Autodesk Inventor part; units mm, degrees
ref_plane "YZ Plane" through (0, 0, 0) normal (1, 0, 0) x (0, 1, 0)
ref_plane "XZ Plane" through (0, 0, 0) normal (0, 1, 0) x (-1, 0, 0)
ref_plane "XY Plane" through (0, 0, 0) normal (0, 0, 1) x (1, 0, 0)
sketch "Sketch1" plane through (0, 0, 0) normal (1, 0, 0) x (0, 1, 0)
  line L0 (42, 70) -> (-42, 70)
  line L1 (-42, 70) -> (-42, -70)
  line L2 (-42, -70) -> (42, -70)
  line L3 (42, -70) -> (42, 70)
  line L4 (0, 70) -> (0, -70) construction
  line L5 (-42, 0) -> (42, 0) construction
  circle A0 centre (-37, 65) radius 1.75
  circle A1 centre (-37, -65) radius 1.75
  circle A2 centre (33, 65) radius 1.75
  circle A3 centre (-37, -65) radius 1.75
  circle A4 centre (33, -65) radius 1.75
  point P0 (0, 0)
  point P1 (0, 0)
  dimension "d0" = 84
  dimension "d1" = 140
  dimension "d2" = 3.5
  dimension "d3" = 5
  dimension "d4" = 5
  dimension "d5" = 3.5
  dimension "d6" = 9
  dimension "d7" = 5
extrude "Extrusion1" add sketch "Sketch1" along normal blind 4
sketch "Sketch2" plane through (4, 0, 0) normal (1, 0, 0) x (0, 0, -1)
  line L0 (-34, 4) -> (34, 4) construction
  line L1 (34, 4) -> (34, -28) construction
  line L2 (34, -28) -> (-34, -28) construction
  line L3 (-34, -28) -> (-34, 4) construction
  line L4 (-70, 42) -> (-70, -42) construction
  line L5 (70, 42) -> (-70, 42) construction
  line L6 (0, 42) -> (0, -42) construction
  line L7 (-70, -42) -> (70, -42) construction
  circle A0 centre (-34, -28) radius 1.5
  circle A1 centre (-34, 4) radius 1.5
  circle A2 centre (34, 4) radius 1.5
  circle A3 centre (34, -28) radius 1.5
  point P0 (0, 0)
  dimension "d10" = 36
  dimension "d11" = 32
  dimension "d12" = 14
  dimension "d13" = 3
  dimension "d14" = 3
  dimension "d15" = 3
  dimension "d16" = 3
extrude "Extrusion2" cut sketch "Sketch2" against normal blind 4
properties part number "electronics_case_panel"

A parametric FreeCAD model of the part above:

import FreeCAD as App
import Part
import Sketcher
from FreeCAD import Vector


def add_polygon(sketch, points):
    """Adds a closed chain of lines whose ends are joined by coincident constraints."""
    first, n = sketch.GeometryCount, len(points)
    for a, b in zip(points, points[1:] + points[:1]):
        sketch.addGeometry(Part.LineSegment(App.Vector(*a, 0), App.Vector(*b, 0)), False)
    for i in range(n):
        sketch.addConstraint(Sketcher.Constraint("Coincident", first + i, 2, first + (i + 1) % n, 1))

doc = App.newDocument("Part")
params = doc.addObject("Spreadsheet::Sheet", "Params")
for row, (alias, value) in enumerate([
    ("sketch1_diameter", "3.5 mm"),
    ("sketch1_width", "84 mm"),
    ("sketch1_height", "140 mm"),
    ("pad1_length", "4 mm"),
    ("sketch2_diameter", "3 mm"),
    ("pocket1_length", "4 mm"),
], start=1):
    params.set(f"A{row}", alias)
    params.set(f"B{row}", "=" + value)
    params.setAlias(f"B{row}", alias)

body = doc.addObject("PartDesign::Body", "Body")

# Sketch on YZ plane
sketch1 = body.newObject("Sketcher::SketchObject", "Sketch")
sketch1.AttachmentSupport = (doc.getObject("YZ_Plane"), [""])
sketch1.MapMode = "FlatFace"
add_polygon(sketch1, [(42, -70), (42, 70), (-42, 70), (-42, -70)])  # lines 0-3
sketch1.addGeometry(Part.Circle(Vector(-37, -65, 0), Vector(0, 0, 1), 1.8), False)  # 4
sketch1.addGeometry(Part.Circle(Vector(33, -65, 0), Vector(0, 0, 1), 1.8), False)  # 5
sketch1.addGeometry(Part.Circle(Vector(-37, 65, 0), Vector(0, 0, 1), 1.8), False)  # 6
sketch1.addGeometry(Part.Circle(Vector(33, 65, 0), Vector(0, 0, 1), 1.8), False)  # 7
sketch1.addConstraint(Sketcher.Constraint("Vertical", 0))
sketch1.addConstraint(Sketcher.Constraint("Horizontal", 1))
sketch1.addConstraint(Sketcher.Constraint("Vertical", 2))
sketch1.addConstraint(Sketcher.Constraint("Horizontal", 3))
sketch1.addConstraint(Sketcher.Constraint("Equal", 4, 5))
sketch1.addConstraint(Sketcher.Constraint("Equal", 5, 6))
sketch1.addConstraint(Sketcher.Constraint("Equal", 6, 7))
sketch1.addConstraint(Sketcher.Constraint("Symmetric", 0, 2, 2, 2, -1, 1))
sketch1.addConstraint(Sketcher.Constraint("Symmetric", 4, 3, 6, 3, -1))
sketch1.addConstraint(Sketcher.Constraint("Symmetric", 5, 3, 7, 3, -1))
sketch1.addConstraint(Sketcher.Constraint("Horizontal", 4, 3, 5, 3))
sketch1.addConstraint(Sketcher.Constraint("Diameter", 4, 3.5))
sketch1.addConstraint(Sketcher.Constraint("DistanceX", 1, 2, 1, 1, 84.0))
sketch1.addConstraint(Sketcher.Constraint("DistanceY", 0, 1, 0, 2, 140.0))
sketch1.addConstraint(Sketcher.Constraint("DistanceX", 7, 3, 0, 2, 9.0))
sketch1.addConstraint(Sketcher.Constraint("DistanceY", 7, 3, 0, 2, 5.0))
sketch1.addConstraint(Sketcher.Constraint("DistanceX", 1, 2, 6, 3, 5.0))
sketch1.setExpression("Constraints[15]", "Params.sketch1_diameter")
sketch1.setExpression("Constraints[16]", "Params.sketch1_width")
sketch1.setExpression("Constraints[17]", "Params.sketch1_height")
pad1 = body.newObject("PartDesign::Pad", "Pad")
pad1.Profile = sketch1
pad1.setExpression("Length", "Params.pad1_length")

# Sketch on YZ plane
sketch2 = body.newObject("Sketcher::SketchObject", "Sketch001")
sketch2.AttachmentSupport = (doc.getObject("YZ_Plane"), [""])
sketch2.MapMode = "FlatFace"
sketch2.AttachmentOffset = App.Placement(Vector(0, 0, 4), App.Rotation())
sketch2.addGeometry(Part.Circle(Vector(-28, 34, 0), Vector(0, 0, 1), 1.5), False)
sketch2.addGeometry(Part.Circle(Vector(4, 34, 0), Vector(0, 0, 1), 1.5), False)
sketch2.addGeometry(Part.Circle(Vector(4, -34, 0), Vector(0, 0, 1), 1.5), False)
sketch2.addGeometry(Part.Circle(Vector(-28, -34, 0), Vector(0, 0, 1), 1.5), False)
sketch2.addConstraint(Sketcher.Constraint("Equal", 0, 1))
sketch2.addConstraint(Sketcher.Constraint("Equal", 1, 2))
sketch2.addConstraint(Sketcher.Constraint("Equal", 2, 3))
sketch2.addConstraint(Sketcher.Constraint("Symmetric", 1, 3, 2, 3, -1))
sketch2.addConstraint(Sketcher.Constraint("Symmetric", 0, 3, 3, 3, -1))
sketch2.addConstraint(Sketcher.Constraint("Horizontal", 0, 3, 1, 3))
sketch2.addConstraint(Sketcher.Constraint("Diameter", 0, 3.0))
sketch2.addConstraint(Sketcher.Constraint("DistanceX", 0, 3, 1, 3, 32.0))
sketch2.addConstraint(Sketcher.Constraint("DistanceX", 0, 3, -1, 1, 28.0))
sketch2.addConstraint(Sketcher.Constraint("DistanceY", -1, 1, 0, 3, 34.0))
sketch2.setExpression("Constraints[6]", "Params.sketch2_diameter")
pocket1 = body.newObject("PartDesign::Pocket", "Pocket")
pocket1.Profile = sketch2
pocket1.setExpression("Length", "Params.pocket1_length")

doc.recompute()
